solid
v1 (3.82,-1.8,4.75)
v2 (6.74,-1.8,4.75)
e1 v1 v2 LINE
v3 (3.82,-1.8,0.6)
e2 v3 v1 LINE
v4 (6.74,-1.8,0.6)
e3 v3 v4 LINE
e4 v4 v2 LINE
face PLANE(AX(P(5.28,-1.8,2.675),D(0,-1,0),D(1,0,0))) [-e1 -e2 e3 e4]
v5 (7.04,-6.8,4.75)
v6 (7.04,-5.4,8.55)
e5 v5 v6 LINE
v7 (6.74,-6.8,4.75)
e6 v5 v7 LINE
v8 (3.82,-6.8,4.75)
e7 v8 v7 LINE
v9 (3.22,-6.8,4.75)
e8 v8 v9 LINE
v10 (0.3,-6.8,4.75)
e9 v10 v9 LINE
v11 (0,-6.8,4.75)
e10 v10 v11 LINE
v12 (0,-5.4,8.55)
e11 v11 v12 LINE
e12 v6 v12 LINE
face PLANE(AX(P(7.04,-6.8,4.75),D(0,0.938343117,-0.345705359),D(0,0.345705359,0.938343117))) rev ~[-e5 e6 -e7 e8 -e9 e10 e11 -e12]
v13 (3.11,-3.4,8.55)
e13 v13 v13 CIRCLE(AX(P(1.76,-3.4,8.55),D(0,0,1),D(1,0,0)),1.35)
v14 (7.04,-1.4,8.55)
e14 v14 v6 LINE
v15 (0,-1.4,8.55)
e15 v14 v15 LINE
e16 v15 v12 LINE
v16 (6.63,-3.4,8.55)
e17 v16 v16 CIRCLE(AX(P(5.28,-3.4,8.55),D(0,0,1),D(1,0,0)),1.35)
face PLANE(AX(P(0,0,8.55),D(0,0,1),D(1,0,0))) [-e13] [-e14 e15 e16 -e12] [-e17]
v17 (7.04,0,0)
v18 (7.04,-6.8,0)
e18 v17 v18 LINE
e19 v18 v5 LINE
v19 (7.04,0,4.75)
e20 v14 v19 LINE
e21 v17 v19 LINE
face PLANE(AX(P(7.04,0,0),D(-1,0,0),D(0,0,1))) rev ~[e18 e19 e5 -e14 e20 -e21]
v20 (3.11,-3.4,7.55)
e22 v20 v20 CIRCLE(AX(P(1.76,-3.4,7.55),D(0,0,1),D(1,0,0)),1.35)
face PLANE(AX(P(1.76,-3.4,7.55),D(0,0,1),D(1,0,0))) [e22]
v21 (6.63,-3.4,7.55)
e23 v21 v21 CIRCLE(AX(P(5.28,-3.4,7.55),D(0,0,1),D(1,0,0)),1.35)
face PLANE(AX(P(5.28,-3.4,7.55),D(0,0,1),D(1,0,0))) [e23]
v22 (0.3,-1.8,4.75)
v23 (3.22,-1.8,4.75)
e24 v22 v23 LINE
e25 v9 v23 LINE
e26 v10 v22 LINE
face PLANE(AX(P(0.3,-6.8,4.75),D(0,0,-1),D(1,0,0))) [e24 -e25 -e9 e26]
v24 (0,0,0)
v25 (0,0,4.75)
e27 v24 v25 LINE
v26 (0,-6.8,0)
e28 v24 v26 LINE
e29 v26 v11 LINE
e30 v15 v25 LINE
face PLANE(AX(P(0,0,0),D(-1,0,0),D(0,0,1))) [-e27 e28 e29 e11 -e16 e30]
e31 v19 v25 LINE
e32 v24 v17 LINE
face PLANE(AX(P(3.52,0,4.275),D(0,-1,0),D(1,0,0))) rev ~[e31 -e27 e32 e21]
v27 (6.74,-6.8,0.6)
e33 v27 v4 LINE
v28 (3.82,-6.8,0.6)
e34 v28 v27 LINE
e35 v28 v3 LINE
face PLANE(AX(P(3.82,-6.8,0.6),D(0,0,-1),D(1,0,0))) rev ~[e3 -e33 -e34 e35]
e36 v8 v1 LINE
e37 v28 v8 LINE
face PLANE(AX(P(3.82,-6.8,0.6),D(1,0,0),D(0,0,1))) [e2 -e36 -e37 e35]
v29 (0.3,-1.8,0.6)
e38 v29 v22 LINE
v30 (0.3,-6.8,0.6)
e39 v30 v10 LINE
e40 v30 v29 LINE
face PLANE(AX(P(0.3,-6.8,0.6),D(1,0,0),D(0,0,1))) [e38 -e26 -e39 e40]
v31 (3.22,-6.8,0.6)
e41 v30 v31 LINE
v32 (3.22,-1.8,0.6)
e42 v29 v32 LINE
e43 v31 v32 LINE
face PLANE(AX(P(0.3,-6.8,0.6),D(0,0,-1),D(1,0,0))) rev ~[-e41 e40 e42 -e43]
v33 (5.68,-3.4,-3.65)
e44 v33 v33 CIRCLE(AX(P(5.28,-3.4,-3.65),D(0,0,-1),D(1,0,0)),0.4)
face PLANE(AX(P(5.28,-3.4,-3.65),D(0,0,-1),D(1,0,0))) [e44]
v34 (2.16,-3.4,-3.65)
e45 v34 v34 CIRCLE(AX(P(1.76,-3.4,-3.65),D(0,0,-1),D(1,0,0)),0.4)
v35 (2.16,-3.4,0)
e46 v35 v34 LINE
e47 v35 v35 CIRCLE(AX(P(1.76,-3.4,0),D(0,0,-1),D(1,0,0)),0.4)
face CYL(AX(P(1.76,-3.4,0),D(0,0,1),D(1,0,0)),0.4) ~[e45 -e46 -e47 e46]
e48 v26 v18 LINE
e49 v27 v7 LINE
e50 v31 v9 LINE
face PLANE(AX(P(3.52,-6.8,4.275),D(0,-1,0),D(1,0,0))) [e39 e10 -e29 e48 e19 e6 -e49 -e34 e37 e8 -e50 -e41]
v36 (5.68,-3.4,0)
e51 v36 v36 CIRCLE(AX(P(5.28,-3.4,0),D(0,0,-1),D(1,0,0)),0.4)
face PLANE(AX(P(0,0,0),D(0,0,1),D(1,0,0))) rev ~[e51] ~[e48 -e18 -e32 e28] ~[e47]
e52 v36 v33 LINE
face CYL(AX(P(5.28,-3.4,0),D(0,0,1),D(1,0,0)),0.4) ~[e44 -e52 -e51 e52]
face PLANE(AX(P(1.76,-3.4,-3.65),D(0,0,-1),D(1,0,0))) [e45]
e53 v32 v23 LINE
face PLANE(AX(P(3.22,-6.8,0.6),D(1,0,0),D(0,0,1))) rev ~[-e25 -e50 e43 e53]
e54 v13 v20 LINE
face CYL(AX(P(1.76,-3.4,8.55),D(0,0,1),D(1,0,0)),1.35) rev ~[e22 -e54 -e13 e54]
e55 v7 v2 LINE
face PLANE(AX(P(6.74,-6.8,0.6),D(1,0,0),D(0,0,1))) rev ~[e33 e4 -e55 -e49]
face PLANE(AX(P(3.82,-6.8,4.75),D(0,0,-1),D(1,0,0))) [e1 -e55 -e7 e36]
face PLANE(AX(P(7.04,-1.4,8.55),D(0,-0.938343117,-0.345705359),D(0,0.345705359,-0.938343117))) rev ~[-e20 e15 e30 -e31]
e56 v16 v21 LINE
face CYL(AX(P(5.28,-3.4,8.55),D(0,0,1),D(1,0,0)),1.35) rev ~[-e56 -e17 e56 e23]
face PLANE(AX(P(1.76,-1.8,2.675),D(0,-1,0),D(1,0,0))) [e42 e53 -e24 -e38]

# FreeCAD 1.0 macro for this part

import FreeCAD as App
import Part
import Sketcher
Q = App.Units.Quantity


def add_polygon(sketch, points):
    """Adds a closed chain of lines whose ends are joined by coincident constraints."""
    first, n = sketch.GeometryCount, len(points)
    for a, b in zip(points, points[1:] + points[:1]):
        sketch.addGeometry(Part.LineSegment(App.Vector(*a, 0), App.Vector(*b, 0)), False)
    for i in range(n):
        sketch.addConstraint(Sketcher.Constraint("Coincident", first + i, 2, first + (i + 1) % n, 1))

doc = App.newDocument("Part")
body = doc.addObject("PartDesign::Body", "Body")

# Sketch on XZ plane
sketch1 = doc.addObject("Sketcher::SketchObject", "Sketch")
body.addObject(sketch1)
sketch1.AttachmentSupport = (doc.XZ_Plane, [""])
sketch1.MapMode = "FlatFace"
add_polygon(sketch1, [(0, 9), (0, 0), (7, 0), (7, 9)])  # lines 0-3
sketch1.addConstraint([
    Sketcher.Constraint("Vertical", 0),
    Sketcher.Constraint("Horizontal", 1),
    Sketcher.Constraint("Vertical", 2),
    Sketcher.Constraint("Horizontal", 3),
    Sketcher.Constraint("Coincident", 0, 2, -1, 1),
    Sketcher.Constraint("DistanceX", 1, 1, 1, 2, Q("7.04 mm")),
    Sketcher.Constraint("DistanceY", 0, 2, 0, 1, Q("8.55 mm")),
])
pad1 = doc.addObject("PartDesign::Pad", "Pad")
body.addObject(pad1)
pad1.Profile = sketch1
pad1.Length = 6.8

# Sketch on YZ plane
sketch2 = doc.addObject("Sketcher::SketchObject", "Sketch001")
body.addObject(sketch2)
sketch2.AttachmentSupport = (doc.YZ_Plane, [""])
sketch2.MapMode = "FlatFace"
sketch2.AttachmentOffset = App.Placement(App.Vector(0, 0, 7.04), App.Rotation())
add_polygon(sketch2, [(-6.8, 8.6), (-6.8, 4.8), (-5.4, 8.6)])  # lines 0-2
add_polygon(sketch2, [(0, 4.8), (0, 8.6), (-1.4, 8.6)])  # lines 3-5
sketch2.addConstraint([
    Sketcher.Constraint("Vertical", 0),
    Sketcher.Constraint("Horizontal", 2),
    Sketcher.Constraint("Vertical", 3),
    Sketcher.Constraint("Horizontal", 4),
    Sketcher.Constraint("PointOnObject", 3, 2, -2),
    Sketcher.Constraint("Horizontal", 2, 2, 3, 2),
    Sketcher.Constraint("Horizontal", 0, 2, 5, 2),
    Sketcher.Constraint("Equal", 2, 4),
    Sketcher.Constraint("DistanceX", 2, 2, 2, 1, Q("1.4 mm")),
    Sketcher.Constraint("DistanceY", 0, 2, 0, 1, Q("3.8 mm")),
    Sketcher.Constraint("DistanceX", 1, 2, 4, 2, Q("4 mm")),
    Sketcher.Constraint("DistanceY", -1, 1, 0, 2, Q("4.75 mm")),
])
pocket1 = doc.addObject("PartDesign::Pocket", "Pocket")
body.addObject(pocket1)
pocket1.Profile = sketch2
pocket1.Type = "ThroughAll"

# Sketch on XZ plane
sketch3 = doc.addObject("Sketcher::SketchObject", "Sketch002")
body.addObject(sketch3)
sketch3.AttachmentSupport = (doc.XZ_Plane, [""])
sketch3.MapMode = "FlatFace"
sketch3.AttachmentOffset = App.Placement(App.Vector(0, 0, 6.8), App.Rotation())
add_polygon(sketch3, [(0.3, 4.8), (0.3, 0.6), (3.2, 0.6), (3.2, 4.8)])  # lines 0-3
add_polygon(sketch3, [(3.8, 4.8), (3.8, 0.6), (6.7, 0.6), (6.7, 4.8)])  # lines 4-7
sketch3.addConstraint([
    Sketcher.Constraint("Vertical", 0),
    Sketcher.Constraint("Horizontal", 1),
    Sketcher.Constraint("Vertical", 2),
    Sketcher.Constraint("Horizontal", 3),
    Sketcher.Constraint("Vertical", 4),
    Sketcher.Constraint("Horizontal", 5),
    Sketcher.Constraint("Vertical", 6),
    Sketcher.Constraint("Horizontal", 7),
    Sketcher.Constraint("Horizontal", 1, 2, 4, 2),
    Sketcher.Constraint("Horizontal", 3, 2, 6, 2),
    Sketcher.Constraint("Equal", 3, 5),
    Sketcher.Constraint("DistanceX", 1, 1, 1, 2, Q("2.92 mm")),
    Sketcher.Constraint("DistanceY", 0, 2, 0, 1, Q("4.15 mm")),
    Sketcher.Constraint("DistanceX", -1, 1, 0, 2, Q("0.3 mm")),
    Sketcher.Constraint("DistanceY", -1, 1, 0, 2, Q("0.6 mm")),
    Sketcher.Constraint("DistanceX", 1, 2, 4, 2, Q("0.6 mm")),
])
pocket2 = doc.addObject("PartDesign::Pocket", "Pocket001")
body.addObject(pocket2)
pocket2.Profile = sketch3
pocket2.Length = 5

# Sketch on XY plane
sketch4 = doc.addObject("Sketcher::SketchObject", "Sketch003")
body.addObject(sketch4)
sketch4.AttachmentSupport = (doc.XY_Plane, [""])
sketch4.MapMode = "FlatFace"
sketch4.AttachmentOffset = App.Placement(App.Vector(0, 0, 8.55), App.Rotation())
sketch4.addGeometry([
    Part.Circle(App.Vector(1.8, -3.4, 0), App.Vector(0, 0, 1), 1.4),
    Part.Circle(App.Vector(5.3, -3.4, 0), App.Vector(0, 0, 1), 1.4),
], False)
sketch4.addConstraint([
    Sketcher.Constraint("Equal", 0, 1),
    Sketcher.Constraint("Horizontal", 0, 3, 1, 3),
    Sketcher.Constraint("Diameter", 0, Q("2.7 mm")),
    Sketcher.Constraint("DistanceY", 0, 3, -1, 1, Q("3.4 mm")),
    Sketcher.Constraint("DistanceX", -1, 1, 0, 3, Q("1.76 mm")),
    Sketcher.Constraint("DistanceX", -1, 1, 1, 3, Q("5.28 mm")),
])
pocket3 = doc.addObject("PartDesign::Pocket", "Pocket002")
body.addObject(pocket3)
pocket3.Profile = sketch4
pocket3.Length = 1

# Sketch on XY plane
sketch5 = doc.addObject("Sketcher::SketchObject", "Sketch004")
body.addObject(sketch5)
sketch5.AttachmentSupport = (doc.XY_Plane, [""])
sketch5.MapMode = "FlatFace"
sketch5.addGeometry([
    Part.Circle(App.Vector(1.76, -3.4, 0), App.Vector(0, 0, 1), 0.4),
    Part.Circle(App.Vector(5.28, -3.4, 0), App.Vector(0, 0, 1), 0.4),
], False)
sketch5.addConstraint([
    Sketcher.Constraint("Equal", 0, 1),
    Sketcher.Constraint("Horizontal", 0, 3, 1, 3),
    Sketcher.Constraint("Diameter", 0, Q("0.8 mm")),
    Sketcher.Constraint("DistanceY", 0, 3, -1, 1, Q("3.4 mm")),
    Sketcher.Constraint("DistanceX", -1, 1, 0, 3, Q("1.76 mm")),
    Sketcher.Constraint("DistanceX", -1, 1, 1, 3, Q("5.28 mm")),
])
pad2 = doc.addObject("PartDesign::Pad", "Pad001")
body.addObject(pad2)
pad2.Profile = sketch5
pad2.Length = 3.65
pad2.Reversed = True

doc.recompute()
